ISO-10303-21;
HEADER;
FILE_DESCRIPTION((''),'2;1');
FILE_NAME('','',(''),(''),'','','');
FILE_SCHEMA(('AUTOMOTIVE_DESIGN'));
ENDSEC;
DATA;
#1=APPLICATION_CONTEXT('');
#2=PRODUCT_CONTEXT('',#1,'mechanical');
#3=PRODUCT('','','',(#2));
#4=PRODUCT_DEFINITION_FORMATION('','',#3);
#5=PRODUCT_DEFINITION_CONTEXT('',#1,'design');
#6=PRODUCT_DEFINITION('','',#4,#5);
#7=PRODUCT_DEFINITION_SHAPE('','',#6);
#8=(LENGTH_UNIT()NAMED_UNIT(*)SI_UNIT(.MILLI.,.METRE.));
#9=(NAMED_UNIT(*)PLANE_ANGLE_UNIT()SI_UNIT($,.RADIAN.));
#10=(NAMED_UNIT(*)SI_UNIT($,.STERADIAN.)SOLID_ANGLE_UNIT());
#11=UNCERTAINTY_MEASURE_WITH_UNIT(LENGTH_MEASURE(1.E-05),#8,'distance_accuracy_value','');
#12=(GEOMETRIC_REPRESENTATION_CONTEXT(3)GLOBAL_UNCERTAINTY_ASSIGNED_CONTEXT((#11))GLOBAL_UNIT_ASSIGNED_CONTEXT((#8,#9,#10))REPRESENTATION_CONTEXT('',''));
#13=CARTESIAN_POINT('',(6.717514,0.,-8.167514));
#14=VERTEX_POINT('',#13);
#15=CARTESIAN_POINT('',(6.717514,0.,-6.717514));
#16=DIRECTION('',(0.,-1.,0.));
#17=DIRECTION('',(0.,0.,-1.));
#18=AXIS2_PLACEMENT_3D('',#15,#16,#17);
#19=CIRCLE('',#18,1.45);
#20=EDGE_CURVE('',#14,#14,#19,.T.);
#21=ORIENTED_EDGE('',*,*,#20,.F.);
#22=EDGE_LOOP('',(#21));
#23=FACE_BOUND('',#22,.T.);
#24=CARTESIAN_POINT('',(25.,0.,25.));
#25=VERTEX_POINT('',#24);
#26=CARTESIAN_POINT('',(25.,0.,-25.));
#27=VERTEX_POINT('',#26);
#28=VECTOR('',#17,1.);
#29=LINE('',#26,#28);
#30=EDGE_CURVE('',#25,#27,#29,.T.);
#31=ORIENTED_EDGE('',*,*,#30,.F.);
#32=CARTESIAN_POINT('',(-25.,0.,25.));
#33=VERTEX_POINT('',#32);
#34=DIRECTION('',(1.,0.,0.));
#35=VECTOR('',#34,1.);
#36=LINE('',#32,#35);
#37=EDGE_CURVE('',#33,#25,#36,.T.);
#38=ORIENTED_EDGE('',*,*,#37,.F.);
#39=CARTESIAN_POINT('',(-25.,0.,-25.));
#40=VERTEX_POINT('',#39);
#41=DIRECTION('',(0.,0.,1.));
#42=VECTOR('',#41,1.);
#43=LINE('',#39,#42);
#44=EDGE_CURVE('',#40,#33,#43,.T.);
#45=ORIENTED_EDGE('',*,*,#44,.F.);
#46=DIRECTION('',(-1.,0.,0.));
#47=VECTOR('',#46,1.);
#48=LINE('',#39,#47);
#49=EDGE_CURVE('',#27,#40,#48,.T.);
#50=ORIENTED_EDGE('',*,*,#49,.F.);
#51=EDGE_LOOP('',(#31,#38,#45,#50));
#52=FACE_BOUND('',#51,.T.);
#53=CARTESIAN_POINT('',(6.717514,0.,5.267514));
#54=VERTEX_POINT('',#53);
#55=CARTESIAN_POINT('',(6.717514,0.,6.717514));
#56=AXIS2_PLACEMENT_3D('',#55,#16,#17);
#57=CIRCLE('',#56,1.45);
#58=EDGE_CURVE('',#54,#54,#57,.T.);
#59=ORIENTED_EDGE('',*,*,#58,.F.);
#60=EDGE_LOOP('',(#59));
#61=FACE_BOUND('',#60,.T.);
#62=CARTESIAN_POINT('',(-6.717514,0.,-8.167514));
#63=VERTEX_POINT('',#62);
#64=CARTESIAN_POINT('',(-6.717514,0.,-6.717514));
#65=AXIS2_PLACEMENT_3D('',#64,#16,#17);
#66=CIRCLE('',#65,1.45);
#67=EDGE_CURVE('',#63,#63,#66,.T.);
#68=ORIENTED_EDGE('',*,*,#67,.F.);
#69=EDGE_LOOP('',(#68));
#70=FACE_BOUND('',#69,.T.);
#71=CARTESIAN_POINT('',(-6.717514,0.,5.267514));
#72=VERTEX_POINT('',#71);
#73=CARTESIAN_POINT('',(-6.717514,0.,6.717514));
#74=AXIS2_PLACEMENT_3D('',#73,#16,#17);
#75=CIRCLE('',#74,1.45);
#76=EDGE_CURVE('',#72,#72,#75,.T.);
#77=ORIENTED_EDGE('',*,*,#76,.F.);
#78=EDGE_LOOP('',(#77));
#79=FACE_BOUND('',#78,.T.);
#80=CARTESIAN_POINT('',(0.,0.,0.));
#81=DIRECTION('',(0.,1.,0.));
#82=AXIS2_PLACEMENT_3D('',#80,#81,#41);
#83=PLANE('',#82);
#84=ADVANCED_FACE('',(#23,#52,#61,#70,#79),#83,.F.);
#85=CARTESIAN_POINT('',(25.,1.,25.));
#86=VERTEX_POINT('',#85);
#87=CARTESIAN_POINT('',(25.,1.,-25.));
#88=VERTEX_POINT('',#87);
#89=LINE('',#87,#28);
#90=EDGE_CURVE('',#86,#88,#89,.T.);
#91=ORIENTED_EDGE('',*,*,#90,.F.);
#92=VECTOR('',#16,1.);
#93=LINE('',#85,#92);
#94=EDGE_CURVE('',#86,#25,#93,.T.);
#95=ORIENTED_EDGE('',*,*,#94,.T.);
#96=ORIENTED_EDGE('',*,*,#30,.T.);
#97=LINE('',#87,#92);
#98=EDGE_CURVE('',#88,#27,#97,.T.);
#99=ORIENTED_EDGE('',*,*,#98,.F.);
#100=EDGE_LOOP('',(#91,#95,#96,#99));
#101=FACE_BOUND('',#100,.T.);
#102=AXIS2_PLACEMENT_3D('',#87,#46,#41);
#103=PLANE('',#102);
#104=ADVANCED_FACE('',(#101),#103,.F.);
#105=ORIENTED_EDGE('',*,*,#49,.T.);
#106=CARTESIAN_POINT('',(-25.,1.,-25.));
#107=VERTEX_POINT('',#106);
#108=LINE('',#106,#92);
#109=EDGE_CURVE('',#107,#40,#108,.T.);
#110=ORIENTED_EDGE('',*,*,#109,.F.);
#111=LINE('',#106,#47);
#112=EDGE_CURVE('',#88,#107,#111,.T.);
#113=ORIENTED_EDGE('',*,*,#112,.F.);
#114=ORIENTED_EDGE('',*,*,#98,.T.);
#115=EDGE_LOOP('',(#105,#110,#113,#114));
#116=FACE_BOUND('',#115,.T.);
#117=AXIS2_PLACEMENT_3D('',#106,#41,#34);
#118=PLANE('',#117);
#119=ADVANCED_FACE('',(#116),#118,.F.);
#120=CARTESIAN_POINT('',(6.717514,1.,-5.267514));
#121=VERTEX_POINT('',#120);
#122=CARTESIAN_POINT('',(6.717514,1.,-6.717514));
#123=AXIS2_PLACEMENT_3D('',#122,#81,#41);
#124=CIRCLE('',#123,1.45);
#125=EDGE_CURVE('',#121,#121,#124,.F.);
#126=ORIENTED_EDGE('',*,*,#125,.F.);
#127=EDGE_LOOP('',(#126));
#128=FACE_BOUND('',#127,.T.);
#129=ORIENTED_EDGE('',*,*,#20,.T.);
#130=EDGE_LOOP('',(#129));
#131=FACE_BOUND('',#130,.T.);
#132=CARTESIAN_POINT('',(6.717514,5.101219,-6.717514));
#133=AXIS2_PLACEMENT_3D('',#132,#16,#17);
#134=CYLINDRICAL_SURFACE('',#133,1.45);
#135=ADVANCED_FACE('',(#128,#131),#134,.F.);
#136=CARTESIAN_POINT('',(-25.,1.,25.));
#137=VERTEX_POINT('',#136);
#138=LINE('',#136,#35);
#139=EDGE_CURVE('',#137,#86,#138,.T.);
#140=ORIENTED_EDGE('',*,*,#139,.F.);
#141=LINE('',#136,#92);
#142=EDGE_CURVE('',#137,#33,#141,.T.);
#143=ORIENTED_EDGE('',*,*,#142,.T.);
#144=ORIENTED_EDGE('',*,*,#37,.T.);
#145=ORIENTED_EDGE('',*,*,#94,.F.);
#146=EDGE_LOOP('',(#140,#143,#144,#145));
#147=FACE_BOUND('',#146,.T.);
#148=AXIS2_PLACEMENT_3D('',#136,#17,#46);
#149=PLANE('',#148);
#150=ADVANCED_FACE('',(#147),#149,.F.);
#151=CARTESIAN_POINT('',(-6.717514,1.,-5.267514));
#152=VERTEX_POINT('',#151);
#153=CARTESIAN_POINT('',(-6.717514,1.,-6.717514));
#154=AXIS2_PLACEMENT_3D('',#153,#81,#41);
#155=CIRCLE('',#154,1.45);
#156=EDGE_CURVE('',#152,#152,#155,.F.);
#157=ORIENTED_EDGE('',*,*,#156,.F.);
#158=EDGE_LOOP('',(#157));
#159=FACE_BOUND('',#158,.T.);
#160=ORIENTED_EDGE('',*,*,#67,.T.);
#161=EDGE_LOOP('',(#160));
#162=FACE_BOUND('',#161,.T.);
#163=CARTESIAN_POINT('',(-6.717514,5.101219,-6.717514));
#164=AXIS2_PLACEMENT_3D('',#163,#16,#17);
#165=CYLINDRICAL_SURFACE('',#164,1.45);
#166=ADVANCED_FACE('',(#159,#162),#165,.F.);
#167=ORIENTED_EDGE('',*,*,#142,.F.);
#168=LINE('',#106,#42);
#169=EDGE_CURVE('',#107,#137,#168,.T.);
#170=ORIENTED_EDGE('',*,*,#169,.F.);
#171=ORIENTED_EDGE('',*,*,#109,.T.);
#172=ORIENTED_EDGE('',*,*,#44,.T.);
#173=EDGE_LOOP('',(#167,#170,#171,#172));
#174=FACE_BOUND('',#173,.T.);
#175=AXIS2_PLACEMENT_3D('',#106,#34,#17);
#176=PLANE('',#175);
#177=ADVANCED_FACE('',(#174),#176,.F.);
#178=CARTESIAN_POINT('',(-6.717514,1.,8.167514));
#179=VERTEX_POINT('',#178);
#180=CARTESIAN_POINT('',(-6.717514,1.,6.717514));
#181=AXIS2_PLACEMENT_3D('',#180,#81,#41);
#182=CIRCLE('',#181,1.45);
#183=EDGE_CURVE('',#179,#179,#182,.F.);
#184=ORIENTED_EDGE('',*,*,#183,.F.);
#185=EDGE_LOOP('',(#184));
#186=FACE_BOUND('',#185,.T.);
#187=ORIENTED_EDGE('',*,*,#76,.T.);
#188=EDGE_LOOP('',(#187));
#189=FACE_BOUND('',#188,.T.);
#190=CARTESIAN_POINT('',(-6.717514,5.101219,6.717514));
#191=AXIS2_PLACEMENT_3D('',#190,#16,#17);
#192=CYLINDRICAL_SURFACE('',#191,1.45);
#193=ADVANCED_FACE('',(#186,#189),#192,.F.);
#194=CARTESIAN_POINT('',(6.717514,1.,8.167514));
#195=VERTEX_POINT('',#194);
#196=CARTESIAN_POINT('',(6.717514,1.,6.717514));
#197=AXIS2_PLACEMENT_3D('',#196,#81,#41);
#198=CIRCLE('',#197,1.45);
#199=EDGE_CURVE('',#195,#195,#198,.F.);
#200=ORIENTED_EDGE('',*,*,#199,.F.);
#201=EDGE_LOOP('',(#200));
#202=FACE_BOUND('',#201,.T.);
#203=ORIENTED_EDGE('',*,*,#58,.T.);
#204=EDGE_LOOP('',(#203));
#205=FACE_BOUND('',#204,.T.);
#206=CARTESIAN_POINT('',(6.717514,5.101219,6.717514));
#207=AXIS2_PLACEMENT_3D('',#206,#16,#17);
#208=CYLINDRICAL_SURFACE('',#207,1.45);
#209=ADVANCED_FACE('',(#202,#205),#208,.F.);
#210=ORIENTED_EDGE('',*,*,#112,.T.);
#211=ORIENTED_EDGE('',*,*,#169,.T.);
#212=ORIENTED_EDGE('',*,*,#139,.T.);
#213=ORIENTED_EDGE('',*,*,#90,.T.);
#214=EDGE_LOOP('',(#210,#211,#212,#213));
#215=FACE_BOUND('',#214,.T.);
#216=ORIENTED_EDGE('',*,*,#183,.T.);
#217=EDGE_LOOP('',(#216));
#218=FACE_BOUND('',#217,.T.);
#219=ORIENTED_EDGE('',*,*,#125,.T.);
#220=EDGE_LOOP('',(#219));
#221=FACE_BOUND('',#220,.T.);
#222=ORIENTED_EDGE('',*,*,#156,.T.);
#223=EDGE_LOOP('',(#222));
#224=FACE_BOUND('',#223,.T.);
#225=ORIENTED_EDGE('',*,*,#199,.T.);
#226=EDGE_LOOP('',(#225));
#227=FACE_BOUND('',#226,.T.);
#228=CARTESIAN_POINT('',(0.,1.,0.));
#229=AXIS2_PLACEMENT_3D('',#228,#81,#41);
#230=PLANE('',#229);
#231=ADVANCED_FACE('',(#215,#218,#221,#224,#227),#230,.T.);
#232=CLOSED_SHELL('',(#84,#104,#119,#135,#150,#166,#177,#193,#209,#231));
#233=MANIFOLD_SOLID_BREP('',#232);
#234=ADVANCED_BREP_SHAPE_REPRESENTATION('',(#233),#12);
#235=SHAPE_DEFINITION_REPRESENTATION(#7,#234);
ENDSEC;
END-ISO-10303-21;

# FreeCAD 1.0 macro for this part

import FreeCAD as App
import Part
import Sketcher


def add_polygon(sketch, points):
    """Adds a closed chain of lines whose ends are joined by coincident constraints."""
    first, n = sketch.GeometryCount, len(points)
    for a, b in zip(points, points[1:] + points[:1]):
        sketch.addGeometry(Part.LineSegment(App.Vector(*a, 0), App.Vector(*b, 0)), False)
    for i in range(n):
        sketch.addConstraint(Sketcher.Constraint("Coincident", first + i, 2, first + (i + 1) % n, 1))

doc = App.newDocument("Part")
body = doc.addObject("PartDesign::Body", "Body")

# Sketch on XZ plane
sketch1 = body.newObject("Sketcher::SketchObject", "Sketch")
sketch1.AttachmentSupport = (doc.getObject("XZ_Plane"), [""])
sketch1.MapMode = "FlatFace"
add_polygon(sketch1, [(-25, -25), (-25, 25), (25, 25), (25, -25)])  # lines 0-3
sketch1.addConstraint(Sketcher.Constraint("Vertical", 0))
sketch1.addConstraint(Sketcher.Constraint("Horizontal", 1))
sketch1.addConstraint(Sketcher.Constraint("Vertical", 2))
sketch1.addConstraint(Sketcher.Constraint("Horizontal", 3))
sketch1.addConstraint(Sketcher.Constraint("Symmetric", 0, 2, 2, 2, -1, 1))
sketch1.addConstraint(Sketcher.Constraint("Equal", 3, 0))
sketch1.addConstraint(Sketcher.Constraint("DistanceX", 1, 1, 1, 2, 50.0))
pad1 = body.newObject("PartDesign::Pad", "Pad")
pad1.Profile = sketch1
pad1.Length = 1
pad1.Reversed = True

# Sketch on XZ plane
sketch2 = body.newObject("Sketcher::SketchObject", "Sketch001")
sketch2.AttachmentSupport = (doc.getObject("XZ_Plane"), [""])
sketch2.MapMode = "FlatFace"
sketch2.addGeometry(Part.Circle(App.Vector(-6.717514, -6.717514, 0), App.Vector(0, 0, 1), 1.45), False)
sketch2.addGeometry(Part.Circle(App.Vector(-6.717514, 6.717514, 0), App.Vector(0, 0, 1), 1.45), False)
sketch2.addGeometry(Part.Circle(App.Vector(6.717514, 6.717514, 0), App.Vector(0, 0, 1), 1.45), False)
sketch2.addGeometry(Part.Circle(App.Vector(6.717514, -6.717514, 0), App.Vector(0, 0, 1), 1.45), False)
sketch2.addConstraint(Sketcher.Constraint("Equal", 0, 1))
sketch2.addConstraint(Sketcher.Constraint("Equal", 1, 2))
sketch2.addConstraint(Sketcher.Constraint("Equal", 2, 3))
sketch2.addConstraint(Sketcher.Constraint("Symmetric", 0, 3, 2, 3, -1, 1))
sketch2.addConstraint(Sketcher.Constraint("Symmetric", 1, 3, 3, 3, -1, 1))
sketch2.addConstraint(Sketcher.Constraint("Symmetric", 1, 3, 2, 3, -2))
sketch2.addConstraint(Sketcher.Constraint("Diameter", 0, 2.9))
sketch2.addConstraint(Sketcher.Constraint("DistanceY", 0, 3, 1, 3, 13.435029))
sketch2.addConstraint(Sketcher.Constraint("DistanceX", 1, 3, 2, 3, 13.435029))
pocket1 = body.newObject("PartDesign::Pocket", "Pocket")
pocket1.Profile = sketch2
pocket1.Length = 1

doc.recompute()
